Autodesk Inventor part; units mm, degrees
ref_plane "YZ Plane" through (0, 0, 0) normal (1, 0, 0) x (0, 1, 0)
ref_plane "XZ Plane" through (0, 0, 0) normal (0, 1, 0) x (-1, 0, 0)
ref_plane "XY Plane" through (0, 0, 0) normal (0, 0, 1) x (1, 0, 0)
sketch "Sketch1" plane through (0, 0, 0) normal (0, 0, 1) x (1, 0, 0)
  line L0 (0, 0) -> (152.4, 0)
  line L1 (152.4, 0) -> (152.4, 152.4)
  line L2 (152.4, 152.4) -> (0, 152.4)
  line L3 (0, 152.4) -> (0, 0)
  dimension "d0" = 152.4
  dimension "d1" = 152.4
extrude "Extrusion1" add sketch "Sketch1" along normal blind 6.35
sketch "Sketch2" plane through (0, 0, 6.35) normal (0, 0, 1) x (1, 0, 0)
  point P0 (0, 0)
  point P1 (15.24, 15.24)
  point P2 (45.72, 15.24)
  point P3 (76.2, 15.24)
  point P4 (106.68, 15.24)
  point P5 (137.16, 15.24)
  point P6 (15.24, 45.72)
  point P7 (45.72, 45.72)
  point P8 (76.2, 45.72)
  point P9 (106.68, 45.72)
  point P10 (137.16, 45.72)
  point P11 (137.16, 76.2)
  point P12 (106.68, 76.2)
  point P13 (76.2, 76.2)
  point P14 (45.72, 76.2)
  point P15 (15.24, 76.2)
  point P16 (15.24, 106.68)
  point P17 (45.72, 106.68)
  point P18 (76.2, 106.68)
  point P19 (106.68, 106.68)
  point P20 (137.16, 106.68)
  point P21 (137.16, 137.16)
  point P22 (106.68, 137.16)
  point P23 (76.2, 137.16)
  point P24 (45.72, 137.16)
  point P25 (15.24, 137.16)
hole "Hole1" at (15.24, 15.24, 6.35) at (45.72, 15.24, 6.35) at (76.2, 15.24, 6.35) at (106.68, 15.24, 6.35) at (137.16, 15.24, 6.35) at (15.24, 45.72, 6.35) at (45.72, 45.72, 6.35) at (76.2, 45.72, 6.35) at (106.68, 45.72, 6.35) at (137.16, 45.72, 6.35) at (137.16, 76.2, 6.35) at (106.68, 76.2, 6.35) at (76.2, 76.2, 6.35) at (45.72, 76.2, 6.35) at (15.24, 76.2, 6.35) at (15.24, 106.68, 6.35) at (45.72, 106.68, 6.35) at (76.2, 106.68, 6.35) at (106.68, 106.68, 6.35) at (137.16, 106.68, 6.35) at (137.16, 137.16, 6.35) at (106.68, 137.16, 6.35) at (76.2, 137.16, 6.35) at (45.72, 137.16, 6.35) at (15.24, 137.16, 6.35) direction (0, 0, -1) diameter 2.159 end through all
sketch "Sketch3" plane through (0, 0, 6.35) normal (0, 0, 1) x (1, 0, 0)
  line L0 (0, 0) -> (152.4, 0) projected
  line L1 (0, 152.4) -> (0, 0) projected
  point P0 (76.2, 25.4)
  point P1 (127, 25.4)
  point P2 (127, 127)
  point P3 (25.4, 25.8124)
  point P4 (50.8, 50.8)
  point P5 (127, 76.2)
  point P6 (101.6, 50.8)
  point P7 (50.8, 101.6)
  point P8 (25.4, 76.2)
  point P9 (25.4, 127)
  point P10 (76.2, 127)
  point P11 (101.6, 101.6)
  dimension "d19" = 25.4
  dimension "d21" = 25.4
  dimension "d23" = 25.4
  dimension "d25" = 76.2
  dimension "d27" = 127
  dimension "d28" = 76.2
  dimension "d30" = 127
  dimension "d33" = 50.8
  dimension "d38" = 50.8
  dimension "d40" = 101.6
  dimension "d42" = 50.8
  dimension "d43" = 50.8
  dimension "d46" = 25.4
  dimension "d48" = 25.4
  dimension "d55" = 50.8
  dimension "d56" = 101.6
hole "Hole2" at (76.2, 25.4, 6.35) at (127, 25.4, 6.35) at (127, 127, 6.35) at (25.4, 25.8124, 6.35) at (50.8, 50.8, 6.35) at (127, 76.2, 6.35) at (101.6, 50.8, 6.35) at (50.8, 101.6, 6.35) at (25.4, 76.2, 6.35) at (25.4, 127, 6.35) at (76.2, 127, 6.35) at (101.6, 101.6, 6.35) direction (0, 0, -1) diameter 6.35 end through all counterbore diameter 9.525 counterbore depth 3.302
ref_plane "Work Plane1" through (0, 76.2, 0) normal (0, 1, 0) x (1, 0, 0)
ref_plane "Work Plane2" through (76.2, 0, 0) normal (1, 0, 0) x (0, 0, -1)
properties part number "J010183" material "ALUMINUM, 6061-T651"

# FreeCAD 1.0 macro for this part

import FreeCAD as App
import Part
import Sketcher

V = App.Vector
Q = App.Units.Quantity


def add_polygon(sketch, points):
    """Adds a closed chain of lines whose ends are joined by coincident constraints."""
    first, n = sketch.GeometryCount, len(points)
    for a, b in zip(points, points[1:] + points[:1]):
        sketch.addGeometry(Part.LineSegment(App.Vector(*a, 0), App.Vector(*b, 0)), False)
    for i in range(n):
        sketch.addConstraint(Sketcher.Constraint("Coincident", first + i, 2, first + (i + 1) % n, 1))

doc = App.newDocument("Part")
body = doc.addObject("PartDesign::Body", "Body")

# Sketch on XY plane
sketch1 = body.newObject("Sketcher::SketchObject", "Sketch")
sketch1.AttachmentSupport = (doc.getObject("XY_Plane"), [""])
sketch1.MapMode = "FlatFace"
add_polygon(sketch1, [(0, 152), (0, 0), (152, 0), (152, 152)])  # lines 0-3
sketch1.addConstraint([
    Sketcher.Constraint("Vertical", 0),
    Sketcher.Constraint("Horizontal", 1),
    Sketcher.Constraint("Vertical", 2),
    Sketcher.Constraint("Horizontal", 3),
    Sketcher.Constraint("Coincident", 0, 2, -1, 1),
    Sketcher.Constraint("Equal", 3, 0),
    Sketcher.Constraint("DistanceX", 1, 1, 1, 2, Q("6 in")),
])
pad1 = body.newObject("PartDesign::Pad", "Pad")
pad1.Profile = sketch1
pad1.Length = Q("0.25 in")

# Sketch on XY plane
sketch2 = body.newObject("Sketcher::SketchObject", "Sketch001")
sketch2.AttachmentSupport = (doc.getObject("XY_Plane"), [""])
sketch2.MapMode = "FlatFace"
sketch2.AttachmentOffset = App.Placement(V(0, 0, 0.25 * 25.4), App.Rotation())
sketch2.addGeometry([
    Part.Circle(V(15.2, 15.2, 0), V(0, 0, 1), 1.1),  # 0
    Part.Circle(V(45.7, 15.2, 0), V(0, 0, 1), 1.1),  # 1
    Part.Circle(V(76.2, 15.2, 0), V(0, 0, 1), 1.1),  # 2
    Part.Circle(V(106.7, 15.2, 0), V(0, 0, 1), 1.1),  # 3
    Part.Circle(V(137.2, 15.2, 0), V(0, 0, 1), 1.1),  # 4
    Part.Circle(V(15.2, 45.7, 0), V(0, 0, 1), 1.1),  # 5
    Part.Circle(V(45.7, 45.7, 0), V(0, 0, 1), 1.1),  # 6
    Part.Circle(V(76.2, 45.7, 0), V(0, 0, 1), 1.1),  # 7
    Part.Circle(V(106.7, 45.7, 0), V(0, 0, 1), 1.1),  # 8
    Part.Circle(V(137.2, 45.7, 0), V(0, 0, 1), 1.1),  # 9
    Part.Circle(V(137.2, 76.2, 0), V(0, 0, 1), 1.1),  # 10
    Part.Circle(V(106.7, 76.2, 0), V(0, 0, 1), 1.1),  # 11
    Part.Circle(V(76.2, 76.2, 0), V(0, 0, 1), 1.1),  # 12
    Part.Circle(V(45.7, 76.2, 0), V(0, 0, 1), 1.1),  # 13
    Part.Circle(V(15.2, 76.2, 0), V(0, 0, 1), 1.1),  # 14
    Part.Circle(V(15.2, 106.7, 0), V(0, 0, 1), 1.1),  # 15
    Part.Circle(V(45.7, 106.7, 0), V(0, 0, 1), 1.1),  # 16
    Part.Circle(V(76.2, 106.7, 0), V(0, 0, 1), 1.1),  # 17
    Part.Circle(V(106.7, 106.7, 0), V(0, 0, 1), 1.1),  # 18
    Part.Circle(V(137.2, 106.7, 0), V(0, 0, 1), 1.1),  # 19
    Part.Circle(V(137.2, 137.2, 0), V(0, 0, 1), 1.1),  # 20
    Part.Circle(V(106.7, 137.2, 0), V(0, 0, 1), 1.1),  # 21
    Part.Circle(V(76.2, 137.2, 0), V(0, 0, 1), 1.1),  # 22
    Part.Circle(V(45.7, 137.2, 0), V(0, 0, 1), 1.1),  # 23
    Part.Circle(V(15.2, 137.2, 0), V(0, 0, 1), 1.1),  # 24
], False)
sketch2.addConstraint([
    Sketcher.Constraint("Equal", 0, 1),
    Sketcher.Constraint("Equal", 1, 2),
    Sketcher.Constraint("Equal", 2, 3),
    Sketcher.Constraint("Equal", 3, 4),
    Sketcher.Constraint("Equal", 4, 5),
    Sketcher.Constraint("Equal", 5, 6),
    Sketcher.Constraint("Equal", 6, 7),
    Sketcher.Constraint("Equal", 7, 8),
    Sketcher.Constraint("Equal", 8, 9),
    Sketcher.Constraint("Equal", 9, 10),
    Sketcher.Constraint("Equal", 10, 11),
    Sketcher.Constraint("Equal", 11, 12),
    Sketcher.Constraint("Equal", 12, 13),
    Sketcher.Constraint("Equal", 13, 14),
    Sketcher.Constraint("Equal", 14, 15),
    Sketcher.Constraint("Equal", 15, 16),
    Sketcher.Constraint("Equal", 16, 17),
    Sketcher.Constraint("Equal", 17, 18),
    Sketcher.Constraint("Equal", 18, 19),
    Sketcher.Constraint("Equal", 19, 20),
    Sketcher.Constraint("Equal", 20, 21),
    Sketcher.Constraint("Equal", 21, 22),
    Sketcher.Constraint("Equal", 22, 23),
    Sketcher.Constraint("Equal", 23, 24),
    Sketcher.Constraint("Horizontal", 0, 3, 1, 3),
    Sketcher.Constraint("Horizontal", 1, 3, 2, 3),
    Sketcher.Constraint("Horizontal", 2, 3, 3, 3),
    Sketcher.Constraint("Horizontal", 3, 3, 4, 3),
    Sketcher.Constraint("Horizontal", 5, 3, 6, 3),
    Sketcher.Constraint("Horizontal", 6, 3, 7, 3),
    Sketcher.Constraint("Horizontal", 7, 3, 8, 3),
    Sketcher.Constraint("Horizontal", 8, 3, 9, 3),
    Sketcher.Constraint("Horizontal", 10, 3, 11, 3),
    Sketcher.Constraint("Horizontal", 11, 3, 12, 3),
    Sketcher.Constraint("Horizontal", 12, 3, 13, 3),
    Sketcher.Constraint("Horizontal", 13, 3, 14, 3),
    Sketcher.Constraint("Horizontal", 15, 3, 16, 3),
    Sketcher.Constraint("Horizontal", 16, 3, 17, 3),
    Sketcher.Constraint("Horizontal", 17, 3, 18, 3),
    Sketcher.Constraint("Horizontal", 18, 3, 19, 3),
    Sketcher.Constraint("Horizontal", 20, 3, 21, 3),
    Sketcher.Constraint("Horizontal", 21, 3, 22, 3),
    Sketcher.Constraint("Horizontal", 22, 3, 23, 3),
    Sketcher.Constraint("Horizontal", 23, 3, 24, 3),
    Sketcher.Constraint("Vertical", 0, 3, 5, 3),
    Sketcher.Constraint("Vertical", 1, 3, 6, 3),
    Sketcher.Constraint("Vertical", 2, 3, 7, 3),
    Sketcher.Constraint("Vertical", 3, 3, 8, 3),
    Sketcher.Constraint("Vertical", 4, 3, 9, 3),
    Sketcher.Constraint("Vertical", 9, 3, 10, 3),
    Sketcher.Constraint("Vertical", 8, 3, 11, 3),
    Sketcher.Constraint("Vertical", 7, 3, 12, 3),
    Sketcher.Constraint("Vertical", 6, 3, 13, 3),
    Sketcher.Constraint("Vertical", 5, 3, 14, 3),
    Sketcher.Constraint("Vertical", 14, 3, 15, 3),
    Sketcher.Constraint("Vertical", 13, 3, 16, 3),
    Sketcher.Constraint("Vertical", 12, 3, 17, 3),
    Sketcher.Constraint("Vertical", 11, 3, 18, 3),
    Sketcher.Constraint("Vertical", 10, 3, 19, 3),
    Sketcher.Constraint("Vertical", 19, 3, 20, 3),
    Sketcher.Constraint("Vertical", 18, 3, 21, 3),
    Sketcher.Constraint("Vertical", 17, 3, 22, 3),
    Sketcher.Constraint("Vertical", 16, 3, 23, 3),
    Sketcher.Constraint("Vertical", 15, 3, 24, 3),
    Sketcher.Constraint("Diameter", 0, Q("0.085 in")),
    Sketcher.Constraint("DistanceX", -1, 1, 2, 3, Q("3 in")),
    Sketcher.Constraint("DistanceY", -1, 1, 10, 3, Q("3 in")),
    Sketcher.Constraint("DistanceX", -1, 1, 0, 3, Q("0.6 in")),
    Sketcher.Constraint("DistanceY", -1, 1, 0, 3, Q("0.6 in")),
    Sketcher.Constraint("DistanceX", -1, 1, 1, 3, Q("1.8 in")),
    Sketcher.Constraint("DistanceX", -1, 1, 3, 3, Q("4.2 in")),
    Sketcher.Constraint("DistanceX", -1, 1, 4, 3, Q("5.4 in")),
    Sketcher.Constraint("DistanceY", -1, 1, 5, 3, Q("1.8 in")),
    Sketcher.Constraint("DistanceY", -1, 1, 15, 3, Q("4.2 in")),
    Sketcher.Constraint("DistanceY", -1, 1, 20, 3, Q("5.4 in")),
])
doc.recompute()
hole = body.newObject("PartDesign::Hole", "Hole")
hole.Profile = sketch2
hole.ThreadType = "None"
hole.Diameter = Q("0.085 in")
hole.DepthType = "ThroughAll"

# Sketch on XY plane
sketch3 = body.newObject("Sketcher::SketchObject", "Sketch002")
sketch3.AttachmentSupport = (doc.getObject("XY_Plane"), [""])
sketch3.MapMode = "FlatFace"
sketch3.AttachmentOffset = App.Placement(V(0, 0, 0.25 * 25.4), App.Rotation())
sketch3.addGeometry([
    Part.Circle(V(76.2, 25.4, 0), V(0, 0, 1), 3.2),  # 0
    Part.Circle(V(127, 25.4, 0), V(0, 0, 1), 3.2),  # 1
    Part.Circle(V(127, 127, 0), V(0, 0, 1), 3.2),  # 2
    Part.Circle(V(25.4, 25.8, 0), V(0, 0, 1), 3.2),  # 3
    Part.Circle(V(50.8, 50.8, 0), V(0, 0, 1), 3.2),  # 4
    Part.Circle(V(127, 76.2, 0), V(0, 0, 1), 3.2),  # 5
    Part.Circle(V(101.6, 50.8, 0), V(0, 0, 1), 3.2),  # 6
    Part.Circle(V(50.8, 101.6, 0), V(0, 0, 1), 3.2),  # 7
    Part.Circle(V(25.4, 76.2, 0), V(0, 0, 1), 3.2),  # 8
    Part.Circle(V(25.4, 127, 0), V(0, 0, 1), 3.2),  # 9
    Part.Circle(V(76.2, 127, 0), V(0, 0, 1), 3.2),  # 10
    Part.Circle(V(101.6, 101.6, 0), V(0, 0, 1), 3.2),  # 11
], False)
sketch3.addConstraint([
    Sketcher.Constraint("Equal", 0, 1),
    Sketcher.Constraint("Equal", 1, 2),
    Sketcher.Constraint("Equal", 2, 3),
    Sketcher.Constraint("Equal", 3, 4),
    Sketcher.Constraint("Equal", 4, 5),
    Sketcher.Constraint("Equal", 5, 6),
    Sketcher.Constraint("Equal", 6, 7),
    Sketcher.Constraint("Equal", 7, 8),
    Sketcher.Constraint("Equal", 8, 9),
    Sketcher.Constraint("Equal", 9, 10),
    Sketcher.Constraint("Equal", 10, 11),
    Sketcher.Constraint("Horizontal", 0, 3, 1, 3),
    Sketcher.Constraint("Horizontal", 4, 3, 6, 3),
    Sketcher.Constraint("Horizontal", 5, 3, 8, 3),
    Sketcher.Constraint("Horizontal", 2, 3, 9, 3),
    Sketcher.Constraint("Horizontal", 9, 3, 10, 3),
    Sketcher.Constraint("Horizontal", 7, 3, 11, 3),
    Sketcher.Constraint("Vertical", 1, 3, 2, 3),
    Sketcher.Constraint("Vertical", 2, 3, 5, 3),
    Sketcher.Constraint("Vertical", 4, 3, 7, 3),
    Sketcher.Constraint("Vertical", 3, 3, 8, 3),
    Sketcher.Constraint("Vertical", 8, 3, 9, 3),
    Sketcher.Constraint("Vertical", 0, 3, 10, 3),
    Sketcher.Constraint("Vertical", 6, 3, 11, 3),
    Sketcher.Constraint("Diameter", 0, Q("0.25 in")),
    Sketcher.Constraint("DistanceX", -1, 1, 0, 3, Q("3 in")),
    Sketcher.Constraint("DistanceY", -1, 1, 0, 3, Q("1 in")),
    Sketcher.Constraint("DistanceX", -1, 1, 1, 3, Q("5 in")),
    Sketcher.Constraint("DistanceY", -1, 1, 2, 3, Q("5 in")),
    Sketcher.Constraint("DistanceX", -1, 1, 3, 3, Q("1 in")),
    Sketcher.Constraint("DistanceX", -1, 1, 4, 3, Q("2 in")),
    Sketcher.Constraint("DistanceY", -1, 1, 4, 3, Q("2 in")),
    Sketcher.Constraint("DistanceY", -1, 1, 5, 3, Q("3 in")),
    Sketcher.Constraint("DistanceX", -1, 1, 6, 3, Q("4 in")),
    Sketcher.Constraint("DistanceY", -1, 1, 7, 3, Q("4 in")),
    Sketcher.Constraint("DistanceY", -1, 1, 3, 3, Q("25.8124 mm")),
])
doc.recompute()
hole2 = body.newObject("PartDesign::Hole", "Hole001")
hole2.Profile = sketch3
hole2.ThreadType = "None"
hole2.Diameter = Q("0.25 in")
hole2.DepthType = "ThroughAll"
hole2.HoleCutType = "Counterbore"
hole2.HoleCutDiameter = Q("0.375 in")
hole2.HoleCutDepth = Q("0.13 in")

doc.recompute()
